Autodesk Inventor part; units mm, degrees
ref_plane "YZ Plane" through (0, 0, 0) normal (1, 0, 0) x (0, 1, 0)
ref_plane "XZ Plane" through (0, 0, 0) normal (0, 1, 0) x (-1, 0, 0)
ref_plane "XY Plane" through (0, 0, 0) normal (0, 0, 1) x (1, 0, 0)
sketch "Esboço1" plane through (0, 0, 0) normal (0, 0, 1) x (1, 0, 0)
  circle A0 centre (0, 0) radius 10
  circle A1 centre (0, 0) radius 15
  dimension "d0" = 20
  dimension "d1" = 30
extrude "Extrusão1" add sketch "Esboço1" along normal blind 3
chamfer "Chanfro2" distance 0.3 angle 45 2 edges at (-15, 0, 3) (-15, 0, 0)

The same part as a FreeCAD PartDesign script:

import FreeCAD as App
import Part
import Sketcher


def edges_at(feature, points):
    """Names of the edges that pass closest to the given points."""
    edges = feature.Shape.Edges
    near = lambda p: min(range(len(edges)), key=lambda i: edges[i].distToShape(Part.Vertex(*p))[0])
    return sorted({f"Edge{near(p) + 1}" for p in points})

doc = App.newDocument("Part")
body = doc.addObject("PartDesign::Body", "Body")

sketch1 = body.newObject("Sketcher::SketchObject", "Sketch")
sketch1.AttachmentSupport = (doc.getObject("XY_Plane"), [""])
sketch1.MapMode = "FlatFace"
sketch1.addGeometry(Part.Circle(App.Vector(0, 0, 0), App.Vector(0, 0, 1), 15), False)
sketch1.addGeometry(Part.Circle(App.Vector(0, 0, 0), App.Vector(0, 0, 1), 10), False)
sketch1.addConstraint(Sketcher.Constraint("Coincident", 0, 3, -1, 1))
sketch1.addConstraint(Sketcher.Constraint("Coincident", 1, 3, -1, 1))
sketch1.addConstraint(Sketcher.Constraint("Diameter", 0, 30.0))
sketch1.addConstraint(Sketcher.Constraint("Diameter", 1, 20.0))
pad1 = body.newObject("PartDesign::Pad", "Pad")
pad1.Profile = sketch1
pad1.Length = 3
doc.recompute()

chamfer = body.newObject("PartDesign::Chamfer", "Chamfer")
chamfer.Base = (pad1, edges_at(pad1, [(-15, 0, 3), (-15, 0, 0)]))
chamfer.Size = 0.3

doc.recompute()
